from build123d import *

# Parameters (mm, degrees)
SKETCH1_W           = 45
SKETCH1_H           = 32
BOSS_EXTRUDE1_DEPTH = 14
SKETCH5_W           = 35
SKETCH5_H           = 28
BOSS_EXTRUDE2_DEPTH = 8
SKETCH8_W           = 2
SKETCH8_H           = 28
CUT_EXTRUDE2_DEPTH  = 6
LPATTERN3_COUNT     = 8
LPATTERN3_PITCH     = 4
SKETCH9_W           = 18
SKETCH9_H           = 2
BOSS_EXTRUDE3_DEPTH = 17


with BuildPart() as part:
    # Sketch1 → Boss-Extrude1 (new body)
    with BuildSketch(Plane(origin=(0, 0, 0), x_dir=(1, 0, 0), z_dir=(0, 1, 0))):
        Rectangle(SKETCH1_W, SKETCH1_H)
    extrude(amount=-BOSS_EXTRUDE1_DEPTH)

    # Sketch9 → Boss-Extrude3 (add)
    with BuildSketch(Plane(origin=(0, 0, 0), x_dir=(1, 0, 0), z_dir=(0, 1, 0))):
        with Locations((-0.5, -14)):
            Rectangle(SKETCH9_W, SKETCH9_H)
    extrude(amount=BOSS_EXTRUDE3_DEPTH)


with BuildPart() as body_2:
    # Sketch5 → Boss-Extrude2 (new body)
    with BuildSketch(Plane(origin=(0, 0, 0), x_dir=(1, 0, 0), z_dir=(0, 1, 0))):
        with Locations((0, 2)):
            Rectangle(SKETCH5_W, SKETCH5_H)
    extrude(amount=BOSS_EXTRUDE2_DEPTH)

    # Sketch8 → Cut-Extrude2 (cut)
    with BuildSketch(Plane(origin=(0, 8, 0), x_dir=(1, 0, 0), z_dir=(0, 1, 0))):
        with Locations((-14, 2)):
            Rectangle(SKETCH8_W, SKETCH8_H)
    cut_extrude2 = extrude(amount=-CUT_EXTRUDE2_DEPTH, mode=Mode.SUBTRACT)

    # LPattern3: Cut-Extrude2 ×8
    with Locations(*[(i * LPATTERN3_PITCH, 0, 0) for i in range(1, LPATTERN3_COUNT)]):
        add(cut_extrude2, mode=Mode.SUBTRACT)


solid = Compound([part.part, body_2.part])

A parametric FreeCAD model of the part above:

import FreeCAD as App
import Part
import Sketcher

V = App.Vector
Q = App.Units.Quantity

doc = App.newDocument("Part")
body = doc.addObject("PartDesign::Body", "Body")

# Sketch on XZ plane
sketch1 = body.newObject("Sketcher::SketchObject", "Sketch")
sketch1.AttachmentSupport = (doc.getObject("XZ_Plane"), [""])
sketch1.MapMode = "FlatFace"
sketch1.addGeometry([
    Part.LineSegment(V(-22, -16, 0), V(-22, 16, 0)),
    Part.LineSegment(V(-22, 16, 0), V(22, 16, 0)),
    Part.LineSegment(V(22, 16, 0), V(22, -16, 0)),
    Part.LineSegment(V(22, -16, 0), V(-22, -16, 0)),
], False)
sketch1.addConstraint([
    Sketcher.Constraint("Coincident", 0, 2, 1, 1),
    Sketcher.Constraint("Coincident", 1, 2, 2, 1),
    Sketcher.Constraint("Coincident", 2, 2, 3, 1),
    Sketcher.Constraint("Coincident", 3, 2, 0, 1),
    Sketcher.Constraint("Vertical", 0),
    Sketcher.Constraint("Horizontal", 1),
    Sketcher.Constraint("Vertical", 2),
    Sketcher.Constraint("Horizontal", 3),
    Sketcher.Constraint("Symmetric", 0, 2, 2, 2, -1, 1),
    Sketcher.Constraint("DistanceX", 1, 1, 1, 2, Q("45 mm")),
    Sketcher.Constraint("DistanceY", 0, 1, 0, 2, Q("32 mm")),
])
pad1 = body.newObject("PartDesign::Pad", "Pad")
pad1.Profile = sketch1
pad1.Length = 14

# Sketch on XZ plane
sketch2 = body.newObject("Sketcher::SketchObject", "Sketch001")
sketch2.AttachmentSupport = (doc.getObject("XZ_Plane"), [""])
sketch2.MapMode = "FlatFace"
sketch2.addGeometry([
    Part.LineSegment(V(-9.5, 13, 0), V(-9.5, 15, 0)),
    Part.LineSegment(V(-9.5, 15, 0), V(8.5, 15, 0)),
    Part.LineSegment(V(8.5, 15, 0), V(8.5, 13, 0)),
    Part.LineSegment(V(8.5, 13, 0), V(-9.5, 13, 0)),
], False)
sketch2.addConstraint([
    Sketcher.Constraint("Coincident", 0, 2, 1, 1),
    Sketcher.Constraint("Coincident", 1, 2, 2, 1),
    Sketcher.Constraint("Coincident", 2, 2, 3, 1),
    Sketcher.Constraint("Coincident", 3, 2, 0, 1),
    Sketcher.Constraint("Vertical", 0),
    Sketcher.Constraint("Horizontal", 1),
    Sketcher.Constraint("Vertical", 2),
    Sketcher.Constraint("Horizontal", 3),
    Sketcher.Constraint("DistanceX", 1, 1, 1, 2, Q("18 mm")),
    Sketcher.Constraint("DistanceY", 0, 1, 0, 2, Q("2 mm")),
    Sketcher.Constraint("DistanceY", -1, 1, 0, 2, Q("15 mm")),
    Sketcher.Constraint("DistanceX", 0, 2, -1, 1, Q("9.5 mm")),
])
pad2 = body.newObject("PartDesign::Pad", "Pad001")
pad2.Profile = sketch2
pad2.Length = 17
pad2.Reversed = True
body2 = doc.addObject("PartDesign::Body", "Body001")

# Sketch on XZ plane
sketch3 = body2.newObject("Sketcher::SketchObject", "Sketch002")
sketch3.AttachmentSupport = (doc.getObject("XZ_Plane001"), [""])
sketch3.MapMode = "FlatFace"
sketch3.addGeometry([
    Part.LineSegment(V(-18, -16, 0), V(-18, 12, 0)),
    Part.LineSegment(V(-18, 12, 0), V(18, 12, 0)),
    Part.LineSegment(V(18, 12, 0), V(18, -16, 0)),
    Part.LineSegment(V(18, -16, 0), V(-18, -16, 0)),
], False)
sketch3.addConstraint([
    Sketcher.Constraint("Coincident", 0, 2, 1, 1),
    Sketcher.Constraint("Coincident", 1, 2, 2, 1),
    Sketcher.Constraint("Coincident", 2, 2, 3, 1),
    Sketcher.Constraint("Coincident", 3, 2, 0, 1),
    Sketcher.Constraint("Vertical", 0),
    Sketcher.Constraint("Horizontal", 1),
    Sketcher.Constraint("Vertical", 2),
    Sketcher.Constraint("Horizontal", 3),
    Sketcher.Constraint("DistanceX", 1, 1, 1, 2, Q("35 mm")),
    Sketcher.Constraint("DistanceY", 0, 1, 0, 2, Q("28 mm")),
    Sketcher.Constraint("DistanceY", -1, 1, 0, 2, Q("12 mm")),
    Sketcher.Constraint("DistanceX", 0, 2, -1, 1, Q("17.5 mm")),
])
pad3 = body2.newObject("PartDesign::Pad", "Pad002")
pad3.Profile = sketch3
pad3.Length = 8
pad3.Reversed = True

# Sketch on XZ plane
sketch4 = body2.newObject("Sketcher::SketchObject", "Sketch003")
sketch4.AttachmentSupport = (doc.getObject("XZ_Plane001"), [""])
sketch4.MapMode = "FlatFace"
sketch4.AttachmentOffset = App.Placement(V(0, 0, -8), App.Rotation())
sketch4.addGeometry([
    Part.LineSegment(V(-15, -16, 0), V(-15, 12, 0)),
    Part.LineSegment(V(-15, 12, 0), V(-13, 12, 0)),
    Part.LineSegment(V(-13, 12, 0), V(-13, -16, 0)),
    Part.LineSegment(V(-13, -16, 0), V(-15, -16, 0)),
], False)
sketch4.addConstraint([
    Sketcher.Constraint("Coincident", 0, 2, 1, 1),
    Sketcher.Constraint("Coincident", 1, 2, 2, 1),
    Sketcher.Constraint("Coincident", 2, 2, 3, 1),
    Sketcher.Constraint("Coincident", 3, 2, 0, 1),
    Sketcher.Constraint("Vertical", 0),
    Sketcher.Constraint("Horizontal", 1),
    Sketcher.Constraint("Vertical", 2),
    Sketcher.Constraint("Horizontal", 3),
    Sketcher.Constraint("DistanceX", 1, 1, 1, 2, Q("2 mm")),
    Sketcher.Constraint("DistanceY", 0, 1, 0, 2, Q("28 mm")),
    Sketcher.Constraint("DistanceX", 0, 2, -1, 1, Q("15 mm")),
    Sketcher.Constraint("DistanceY", -1, 1, 0, 2, Q("12 mm")),
])
pocket1 = body2.newObject("PartDesign::Pocket", "Pocket")
pocket1.Profile = sketch4
pocket1.Length = 6
pocket1.Reversed = True
doc.recompute()

linearpattern = body2.newObject("PartDesign::LinearPattern", "LinearPattern")
linearpattern.Originals = [pocket1]
linearpattern.Direction = (doc.getObject("X_Axis001"), [""])
linearpattern.Mode = "offset"
linearpattern.Offset = 4
linearpattern.Occurrences = 8
body2.Tip = linearpattern

doc.recompute()
